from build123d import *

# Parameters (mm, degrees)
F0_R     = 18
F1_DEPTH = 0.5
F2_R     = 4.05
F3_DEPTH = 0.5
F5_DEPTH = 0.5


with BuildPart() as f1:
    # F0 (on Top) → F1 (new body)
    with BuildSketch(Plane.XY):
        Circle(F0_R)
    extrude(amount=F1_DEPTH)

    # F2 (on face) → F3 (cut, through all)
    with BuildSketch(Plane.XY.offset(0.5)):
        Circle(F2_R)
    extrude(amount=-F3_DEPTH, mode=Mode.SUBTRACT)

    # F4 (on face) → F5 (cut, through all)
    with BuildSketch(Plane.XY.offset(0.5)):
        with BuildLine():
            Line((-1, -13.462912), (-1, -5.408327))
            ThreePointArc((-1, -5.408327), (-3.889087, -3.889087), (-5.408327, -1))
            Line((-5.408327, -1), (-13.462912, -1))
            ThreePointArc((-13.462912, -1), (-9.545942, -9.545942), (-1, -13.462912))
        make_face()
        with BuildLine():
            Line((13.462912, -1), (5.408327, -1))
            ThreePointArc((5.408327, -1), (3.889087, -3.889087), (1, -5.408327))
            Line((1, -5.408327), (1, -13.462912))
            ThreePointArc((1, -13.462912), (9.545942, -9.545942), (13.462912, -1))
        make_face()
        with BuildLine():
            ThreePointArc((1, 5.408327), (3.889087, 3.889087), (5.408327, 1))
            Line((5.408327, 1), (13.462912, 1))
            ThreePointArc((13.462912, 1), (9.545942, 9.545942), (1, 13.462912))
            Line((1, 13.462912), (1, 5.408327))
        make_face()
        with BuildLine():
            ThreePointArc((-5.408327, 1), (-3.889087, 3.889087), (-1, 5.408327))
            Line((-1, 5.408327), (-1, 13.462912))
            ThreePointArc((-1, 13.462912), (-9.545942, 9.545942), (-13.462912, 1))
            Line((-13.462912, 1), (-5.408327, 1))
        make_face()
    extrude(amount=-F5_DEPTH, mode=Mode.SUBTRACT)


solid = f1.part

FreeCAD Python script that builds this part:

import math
import FreeCAD as App
import Part
import Sketcher
from FreeCAD import Vector
Q = App.Units.Quantity

doc = App.newDocument("Part")
body = doc.addObject("PartDesign::Body", "Body")

# Sketch on XY plane
sketch1 = body.newObject("Sketcher::SketchObject", "Sketch")
sketch1.AttachmentSupport = (doc.getObject("XY_Plane"), [""])
sketch1.MapMode = "FlatFace"
sketch1.addGeometry(Part.Circle(Vector(0, 0, 0), Vector(0, 0, 1), 18), False)
sketch1.addConstraint(Sketcher.Constraint("Coincident", 0, 3, -1, 1))
sketch1.addConstraint(Sketcher.Constraint("Diameter", 0, Q("36 mm")))
pad1 = body.newObject("PartDesign::Pad", "Pad")
pad1.Profile = sketch1
pad1.Length = 0.5

# Sketch on XY plane
sketch2 = body.newObject("Sketcher::SketchObject", "Sketch001")
sketch2.AttachmentSupport = (doc.getObject("XY_Plane"), [""])
sketch2.MapMode = "FlatFace"
sketch2.AttachmentOffset = App.Placement(Vector(0, 0, 0.5), App.Rotation())
sketch2.addGeometry(Part.Circle(Vector(0, 0, 0), Vector(0, 0, 1), 4), False)
sketch2.addConstraint(Sketcher.Constraint("Coincident", 0, 3, -1, 1))
sketch2.addConstraint(Sketcher.Constraint("Diameter", 0, Q("8.1 mm")))
pocket1 = body.newObject("PartDesign::Pocket", "Pocket")
pocket1.Profile = sketch2
pocket1.Type = "ThroughAll"

# Sketch on XY plane
sketch3 = body.newObject("Sketcher::SketchObject", "Sketch002")
sketch3.AttachmentSupport = (doc.getObject("XY_Plane"), [""])
sketch3.MapMode = "FlatFace"
sketch3.AttachmentOffset = App.Placement(Vector(0, 0, 0.5), App.Rotation())
sketch3.addGeometry(Part.LineSegment(Vector(-1, -13, 0), Vector(-1, -5, 0)), False)
sketch3.addGeometry(Part.ArcOfCircle(Part.Circle(Vector(0, 0, 0), Vector(0, 0, 1), 6), math.radians(-170), math.radians(-100)), False)
sketch3.addGeometry(Part.LineSegment(Vector(-5, -1, 0), Vector(-13, -1, 0)), False)
sketch3.addGeometry(Part.ArcOfCircle(Part.Circle(Vector(0, 0, 0), Vector(0, 0, 1), 13), math.radians(-176), math.radians(-94)), False)
sketch3.addGeometry(Part.LineSegment(Vector(13, -1, 0), Vector(5, -1, 0)), False)
sketch3.addGeometry(Part.ArcOfCircle(Part.Circle(Vector(0, 0, 0), Vector(0, 0, 1), 6), math.radians(-80), math.radians(-10)), False)
sketch3.addGeometry(Part.LineSegment(Vector(1, -5, 0), Vector(1, -13, 0)), False)
sketch3.addGeometry(Part.ArcOfCircle(Part.Circle(Vector(0, 0, 0), Vector(0, 0, 1), 13), math.radians(-86), math.radians(-4)), False)
sketch3.addGeometry(Part.ArcOfCircle(Part.Circle(Vector(0, 0, 0), Vector(0, 0, 1), 6), math.radians(10), math.radians(80)), False)
sketch3.addGeometry(Part.LineSegment(Vector(5, 1, 0), Vector(13, 1, 0)), False)
sketch3.addGeometry(Part.ArcOfCircle(Part.Circle(Vector(0, 0, 0), Vector(0, 0, 1), 13), math.radians(4), math.radians(86)), False)
sketch3.addGeometry(Part.LineSegment(Vector(1, 13, 0), Vector(1, 5, 0)), False)
sketch3.addGeometry(Part.ArcOfCircle(Part.Circle(Vector(0, 0, 0), Vector(0, 0, 1), 6), math.radians(100), math.radians(170)), False)
sketch3.addGeometry(Part.LineSegment(Vector(-1, 5, 0), Vector(-1, 13, 0)), False)
sketch3.addGeometry(Part.ArcOfCircle(Part.Circle(Vector(0, 0, 0), Vector(0, 0, 1), 13), math.radians(94), math.radians(176)), False)
sketch3.addGeometry(Part.LineSegment(Vector(-13, 1, 0), Vector(-5, 1, 0)), False)
sketch3.addConstraint(Sketcher.Constraint("Coincident", 0, 2, 1, 2))
sketch3.addConstraint(Sketcher.Constraint("Coincident", 1, 1, 2, 1))
sketch3.addConstraint(Sketcher.Constraint("Coincident", 2, 2, 3, 1))
sketch3.addConstraint(Sketcher.Constraint("Coincident", 3, 2, 0, 1))
sketch3.addConstraint(Sketcher.Constraint("Coincident", 4, 2, 5, 2))
sketch3.addConstraint(Sketcher.Constraint("Coincident", 5, 1, 6, 1))
sketch3.addConstraint(Sketcher.Constraint("Coincident", 6, 2, 7, 1))
sketch3.addConstraint(Sketcher.Constraint("Coincident", 7, 2, 4, 1))
sketch3.addConstraint(Sketcher.Constraint("Coincident", 8, 1, 9, 1))
sketch3.addConstraint(Sketcher.Constraint("Coincident", 9, 2, 10, 1))
sketch3.addConstraint(Sketcher.Constraint("Coincident", 10, 2, 11, 1))
sketch3.addConstraint(Sketcher.Constraint("Coincident", 11, 2, 8, 2))
sketch3.addConstraint(Sketcher.Constraint("Coincident", 12, 1, 13, 1))
sketch3.addConstraint(Sketcher.Constraint("Coincident", 13, 2, 14, 1))
sketch3.addConstraint(Sketcher.Constraint("Coincident", 14, 2, 15, 1))
sketch3.addConstraint(Sketcher.Constraint("Coincident", 15, 2, 12, 2))
sketch3.addConstraint(Sketcher.Constraint("Vertical", 0))
sketch3.addConstraint(Sketcher.Constraint("Horizontal", 2))
sketch3.addConstraint(Sketcher.Constraint("Horizontal", 4))
sketch3.addConstraint(Sketcher.Constraint("Vertical", 6))
sketch3.addConstraint(Sketcher.Constraint("Horizontal", 9))
sketch3.addConstraint(Sketcher.Constraint("Vertical", 11))
sketch3.addConstraint(Sketcher.Constraint("Vertical", 13))
sketch3.addConstraint(Sketcher.Constraint("Horizontal", 15))
sketch3.addConstraint(Sketcher.Constraint("Coincident", 1, 3, -1, 1))
sketch3.addConstraint(Sketcher.Constraint("Coincident", 3, 3, -1, 1))
sketch3.addConstraint(Sketcher.Constraint("Coincident", 5, 3, -1, 1))
sketch3.addConstraint(Sketcher.Constraint("Coincident", 7, 3, -1, 1))
sketch3.addConstraint(Sketcher.Constraint("Coincident", 8, 3, -1, 1))
sketch3.addConstraint(Sketcher.Constraint("Coincident", 10, 3, -1, 1))
sketch3.addConstraint(Sketcher.Constraint("Coincident", 12, 3, -1, 1))
sketch3.addConstraint(Sketcher.Constraint("Coincident", 14, 3, -1, 1))
sketch3.addConstraint(Sketcher.Constraint("Equal", 1, 5))
sketch3.addConstraint(Sketcher.Constraint("Equal", 3, 7))
sketch3.addConstraint(Sketcher.Constraint("Equal", 5, 8))
sketch3.addConstraint(Sketcher.Constraint("Equal", 7, 10))
sketch3.addConstraint(Sketcher.Constraint("Equal", 8, 12))
sketch3.addConstraint(Sketcher.Constraint("Equal", 10, 14))
sketch3.addConstraint(Sketcher.Constraint("Horizontal", 2, 2, 4, 2))
sketch3.addConstraint(Sketcher.Constraint("Horizontal", 0, 2, 5, 1))
sketch3.addConstraint(Sketcher.Constraint("Horizontal", 11, 2, 12, 1))
sketch3.addConstraint(Sketcher.Constraint("Horizontal", 9, 2, 14, 2))
sketch3.addConstraint(Sketcher.Constraint("Vertical", 4, 2, 8, 1))
sketch3.addConstraint(Sketcher.Constraint("Vertical", 6, 2, 10, 2))
sketch3.addConstraint(Sketcher.Constraint("Equal", 15, 0))
sketch3.addConstraint(Sketcher.Constraint("DistanceX", 0, 2, -1, 1, Q("1 mm")))
sketch3.addConstraint(Sketcher.Constraint("Radius", 1, Q("5.500002 mm")))
sketch3.addConstraint(Sketcher.Constraint("Radius", 3, Q("13.499998 mm")))
pocket2 = body.newObject("PartDesign::Pocket", "Pocket001")
pocket2.Profile = sketch3
pocket2.Type = "ThroughAll"

doc.recompute()
